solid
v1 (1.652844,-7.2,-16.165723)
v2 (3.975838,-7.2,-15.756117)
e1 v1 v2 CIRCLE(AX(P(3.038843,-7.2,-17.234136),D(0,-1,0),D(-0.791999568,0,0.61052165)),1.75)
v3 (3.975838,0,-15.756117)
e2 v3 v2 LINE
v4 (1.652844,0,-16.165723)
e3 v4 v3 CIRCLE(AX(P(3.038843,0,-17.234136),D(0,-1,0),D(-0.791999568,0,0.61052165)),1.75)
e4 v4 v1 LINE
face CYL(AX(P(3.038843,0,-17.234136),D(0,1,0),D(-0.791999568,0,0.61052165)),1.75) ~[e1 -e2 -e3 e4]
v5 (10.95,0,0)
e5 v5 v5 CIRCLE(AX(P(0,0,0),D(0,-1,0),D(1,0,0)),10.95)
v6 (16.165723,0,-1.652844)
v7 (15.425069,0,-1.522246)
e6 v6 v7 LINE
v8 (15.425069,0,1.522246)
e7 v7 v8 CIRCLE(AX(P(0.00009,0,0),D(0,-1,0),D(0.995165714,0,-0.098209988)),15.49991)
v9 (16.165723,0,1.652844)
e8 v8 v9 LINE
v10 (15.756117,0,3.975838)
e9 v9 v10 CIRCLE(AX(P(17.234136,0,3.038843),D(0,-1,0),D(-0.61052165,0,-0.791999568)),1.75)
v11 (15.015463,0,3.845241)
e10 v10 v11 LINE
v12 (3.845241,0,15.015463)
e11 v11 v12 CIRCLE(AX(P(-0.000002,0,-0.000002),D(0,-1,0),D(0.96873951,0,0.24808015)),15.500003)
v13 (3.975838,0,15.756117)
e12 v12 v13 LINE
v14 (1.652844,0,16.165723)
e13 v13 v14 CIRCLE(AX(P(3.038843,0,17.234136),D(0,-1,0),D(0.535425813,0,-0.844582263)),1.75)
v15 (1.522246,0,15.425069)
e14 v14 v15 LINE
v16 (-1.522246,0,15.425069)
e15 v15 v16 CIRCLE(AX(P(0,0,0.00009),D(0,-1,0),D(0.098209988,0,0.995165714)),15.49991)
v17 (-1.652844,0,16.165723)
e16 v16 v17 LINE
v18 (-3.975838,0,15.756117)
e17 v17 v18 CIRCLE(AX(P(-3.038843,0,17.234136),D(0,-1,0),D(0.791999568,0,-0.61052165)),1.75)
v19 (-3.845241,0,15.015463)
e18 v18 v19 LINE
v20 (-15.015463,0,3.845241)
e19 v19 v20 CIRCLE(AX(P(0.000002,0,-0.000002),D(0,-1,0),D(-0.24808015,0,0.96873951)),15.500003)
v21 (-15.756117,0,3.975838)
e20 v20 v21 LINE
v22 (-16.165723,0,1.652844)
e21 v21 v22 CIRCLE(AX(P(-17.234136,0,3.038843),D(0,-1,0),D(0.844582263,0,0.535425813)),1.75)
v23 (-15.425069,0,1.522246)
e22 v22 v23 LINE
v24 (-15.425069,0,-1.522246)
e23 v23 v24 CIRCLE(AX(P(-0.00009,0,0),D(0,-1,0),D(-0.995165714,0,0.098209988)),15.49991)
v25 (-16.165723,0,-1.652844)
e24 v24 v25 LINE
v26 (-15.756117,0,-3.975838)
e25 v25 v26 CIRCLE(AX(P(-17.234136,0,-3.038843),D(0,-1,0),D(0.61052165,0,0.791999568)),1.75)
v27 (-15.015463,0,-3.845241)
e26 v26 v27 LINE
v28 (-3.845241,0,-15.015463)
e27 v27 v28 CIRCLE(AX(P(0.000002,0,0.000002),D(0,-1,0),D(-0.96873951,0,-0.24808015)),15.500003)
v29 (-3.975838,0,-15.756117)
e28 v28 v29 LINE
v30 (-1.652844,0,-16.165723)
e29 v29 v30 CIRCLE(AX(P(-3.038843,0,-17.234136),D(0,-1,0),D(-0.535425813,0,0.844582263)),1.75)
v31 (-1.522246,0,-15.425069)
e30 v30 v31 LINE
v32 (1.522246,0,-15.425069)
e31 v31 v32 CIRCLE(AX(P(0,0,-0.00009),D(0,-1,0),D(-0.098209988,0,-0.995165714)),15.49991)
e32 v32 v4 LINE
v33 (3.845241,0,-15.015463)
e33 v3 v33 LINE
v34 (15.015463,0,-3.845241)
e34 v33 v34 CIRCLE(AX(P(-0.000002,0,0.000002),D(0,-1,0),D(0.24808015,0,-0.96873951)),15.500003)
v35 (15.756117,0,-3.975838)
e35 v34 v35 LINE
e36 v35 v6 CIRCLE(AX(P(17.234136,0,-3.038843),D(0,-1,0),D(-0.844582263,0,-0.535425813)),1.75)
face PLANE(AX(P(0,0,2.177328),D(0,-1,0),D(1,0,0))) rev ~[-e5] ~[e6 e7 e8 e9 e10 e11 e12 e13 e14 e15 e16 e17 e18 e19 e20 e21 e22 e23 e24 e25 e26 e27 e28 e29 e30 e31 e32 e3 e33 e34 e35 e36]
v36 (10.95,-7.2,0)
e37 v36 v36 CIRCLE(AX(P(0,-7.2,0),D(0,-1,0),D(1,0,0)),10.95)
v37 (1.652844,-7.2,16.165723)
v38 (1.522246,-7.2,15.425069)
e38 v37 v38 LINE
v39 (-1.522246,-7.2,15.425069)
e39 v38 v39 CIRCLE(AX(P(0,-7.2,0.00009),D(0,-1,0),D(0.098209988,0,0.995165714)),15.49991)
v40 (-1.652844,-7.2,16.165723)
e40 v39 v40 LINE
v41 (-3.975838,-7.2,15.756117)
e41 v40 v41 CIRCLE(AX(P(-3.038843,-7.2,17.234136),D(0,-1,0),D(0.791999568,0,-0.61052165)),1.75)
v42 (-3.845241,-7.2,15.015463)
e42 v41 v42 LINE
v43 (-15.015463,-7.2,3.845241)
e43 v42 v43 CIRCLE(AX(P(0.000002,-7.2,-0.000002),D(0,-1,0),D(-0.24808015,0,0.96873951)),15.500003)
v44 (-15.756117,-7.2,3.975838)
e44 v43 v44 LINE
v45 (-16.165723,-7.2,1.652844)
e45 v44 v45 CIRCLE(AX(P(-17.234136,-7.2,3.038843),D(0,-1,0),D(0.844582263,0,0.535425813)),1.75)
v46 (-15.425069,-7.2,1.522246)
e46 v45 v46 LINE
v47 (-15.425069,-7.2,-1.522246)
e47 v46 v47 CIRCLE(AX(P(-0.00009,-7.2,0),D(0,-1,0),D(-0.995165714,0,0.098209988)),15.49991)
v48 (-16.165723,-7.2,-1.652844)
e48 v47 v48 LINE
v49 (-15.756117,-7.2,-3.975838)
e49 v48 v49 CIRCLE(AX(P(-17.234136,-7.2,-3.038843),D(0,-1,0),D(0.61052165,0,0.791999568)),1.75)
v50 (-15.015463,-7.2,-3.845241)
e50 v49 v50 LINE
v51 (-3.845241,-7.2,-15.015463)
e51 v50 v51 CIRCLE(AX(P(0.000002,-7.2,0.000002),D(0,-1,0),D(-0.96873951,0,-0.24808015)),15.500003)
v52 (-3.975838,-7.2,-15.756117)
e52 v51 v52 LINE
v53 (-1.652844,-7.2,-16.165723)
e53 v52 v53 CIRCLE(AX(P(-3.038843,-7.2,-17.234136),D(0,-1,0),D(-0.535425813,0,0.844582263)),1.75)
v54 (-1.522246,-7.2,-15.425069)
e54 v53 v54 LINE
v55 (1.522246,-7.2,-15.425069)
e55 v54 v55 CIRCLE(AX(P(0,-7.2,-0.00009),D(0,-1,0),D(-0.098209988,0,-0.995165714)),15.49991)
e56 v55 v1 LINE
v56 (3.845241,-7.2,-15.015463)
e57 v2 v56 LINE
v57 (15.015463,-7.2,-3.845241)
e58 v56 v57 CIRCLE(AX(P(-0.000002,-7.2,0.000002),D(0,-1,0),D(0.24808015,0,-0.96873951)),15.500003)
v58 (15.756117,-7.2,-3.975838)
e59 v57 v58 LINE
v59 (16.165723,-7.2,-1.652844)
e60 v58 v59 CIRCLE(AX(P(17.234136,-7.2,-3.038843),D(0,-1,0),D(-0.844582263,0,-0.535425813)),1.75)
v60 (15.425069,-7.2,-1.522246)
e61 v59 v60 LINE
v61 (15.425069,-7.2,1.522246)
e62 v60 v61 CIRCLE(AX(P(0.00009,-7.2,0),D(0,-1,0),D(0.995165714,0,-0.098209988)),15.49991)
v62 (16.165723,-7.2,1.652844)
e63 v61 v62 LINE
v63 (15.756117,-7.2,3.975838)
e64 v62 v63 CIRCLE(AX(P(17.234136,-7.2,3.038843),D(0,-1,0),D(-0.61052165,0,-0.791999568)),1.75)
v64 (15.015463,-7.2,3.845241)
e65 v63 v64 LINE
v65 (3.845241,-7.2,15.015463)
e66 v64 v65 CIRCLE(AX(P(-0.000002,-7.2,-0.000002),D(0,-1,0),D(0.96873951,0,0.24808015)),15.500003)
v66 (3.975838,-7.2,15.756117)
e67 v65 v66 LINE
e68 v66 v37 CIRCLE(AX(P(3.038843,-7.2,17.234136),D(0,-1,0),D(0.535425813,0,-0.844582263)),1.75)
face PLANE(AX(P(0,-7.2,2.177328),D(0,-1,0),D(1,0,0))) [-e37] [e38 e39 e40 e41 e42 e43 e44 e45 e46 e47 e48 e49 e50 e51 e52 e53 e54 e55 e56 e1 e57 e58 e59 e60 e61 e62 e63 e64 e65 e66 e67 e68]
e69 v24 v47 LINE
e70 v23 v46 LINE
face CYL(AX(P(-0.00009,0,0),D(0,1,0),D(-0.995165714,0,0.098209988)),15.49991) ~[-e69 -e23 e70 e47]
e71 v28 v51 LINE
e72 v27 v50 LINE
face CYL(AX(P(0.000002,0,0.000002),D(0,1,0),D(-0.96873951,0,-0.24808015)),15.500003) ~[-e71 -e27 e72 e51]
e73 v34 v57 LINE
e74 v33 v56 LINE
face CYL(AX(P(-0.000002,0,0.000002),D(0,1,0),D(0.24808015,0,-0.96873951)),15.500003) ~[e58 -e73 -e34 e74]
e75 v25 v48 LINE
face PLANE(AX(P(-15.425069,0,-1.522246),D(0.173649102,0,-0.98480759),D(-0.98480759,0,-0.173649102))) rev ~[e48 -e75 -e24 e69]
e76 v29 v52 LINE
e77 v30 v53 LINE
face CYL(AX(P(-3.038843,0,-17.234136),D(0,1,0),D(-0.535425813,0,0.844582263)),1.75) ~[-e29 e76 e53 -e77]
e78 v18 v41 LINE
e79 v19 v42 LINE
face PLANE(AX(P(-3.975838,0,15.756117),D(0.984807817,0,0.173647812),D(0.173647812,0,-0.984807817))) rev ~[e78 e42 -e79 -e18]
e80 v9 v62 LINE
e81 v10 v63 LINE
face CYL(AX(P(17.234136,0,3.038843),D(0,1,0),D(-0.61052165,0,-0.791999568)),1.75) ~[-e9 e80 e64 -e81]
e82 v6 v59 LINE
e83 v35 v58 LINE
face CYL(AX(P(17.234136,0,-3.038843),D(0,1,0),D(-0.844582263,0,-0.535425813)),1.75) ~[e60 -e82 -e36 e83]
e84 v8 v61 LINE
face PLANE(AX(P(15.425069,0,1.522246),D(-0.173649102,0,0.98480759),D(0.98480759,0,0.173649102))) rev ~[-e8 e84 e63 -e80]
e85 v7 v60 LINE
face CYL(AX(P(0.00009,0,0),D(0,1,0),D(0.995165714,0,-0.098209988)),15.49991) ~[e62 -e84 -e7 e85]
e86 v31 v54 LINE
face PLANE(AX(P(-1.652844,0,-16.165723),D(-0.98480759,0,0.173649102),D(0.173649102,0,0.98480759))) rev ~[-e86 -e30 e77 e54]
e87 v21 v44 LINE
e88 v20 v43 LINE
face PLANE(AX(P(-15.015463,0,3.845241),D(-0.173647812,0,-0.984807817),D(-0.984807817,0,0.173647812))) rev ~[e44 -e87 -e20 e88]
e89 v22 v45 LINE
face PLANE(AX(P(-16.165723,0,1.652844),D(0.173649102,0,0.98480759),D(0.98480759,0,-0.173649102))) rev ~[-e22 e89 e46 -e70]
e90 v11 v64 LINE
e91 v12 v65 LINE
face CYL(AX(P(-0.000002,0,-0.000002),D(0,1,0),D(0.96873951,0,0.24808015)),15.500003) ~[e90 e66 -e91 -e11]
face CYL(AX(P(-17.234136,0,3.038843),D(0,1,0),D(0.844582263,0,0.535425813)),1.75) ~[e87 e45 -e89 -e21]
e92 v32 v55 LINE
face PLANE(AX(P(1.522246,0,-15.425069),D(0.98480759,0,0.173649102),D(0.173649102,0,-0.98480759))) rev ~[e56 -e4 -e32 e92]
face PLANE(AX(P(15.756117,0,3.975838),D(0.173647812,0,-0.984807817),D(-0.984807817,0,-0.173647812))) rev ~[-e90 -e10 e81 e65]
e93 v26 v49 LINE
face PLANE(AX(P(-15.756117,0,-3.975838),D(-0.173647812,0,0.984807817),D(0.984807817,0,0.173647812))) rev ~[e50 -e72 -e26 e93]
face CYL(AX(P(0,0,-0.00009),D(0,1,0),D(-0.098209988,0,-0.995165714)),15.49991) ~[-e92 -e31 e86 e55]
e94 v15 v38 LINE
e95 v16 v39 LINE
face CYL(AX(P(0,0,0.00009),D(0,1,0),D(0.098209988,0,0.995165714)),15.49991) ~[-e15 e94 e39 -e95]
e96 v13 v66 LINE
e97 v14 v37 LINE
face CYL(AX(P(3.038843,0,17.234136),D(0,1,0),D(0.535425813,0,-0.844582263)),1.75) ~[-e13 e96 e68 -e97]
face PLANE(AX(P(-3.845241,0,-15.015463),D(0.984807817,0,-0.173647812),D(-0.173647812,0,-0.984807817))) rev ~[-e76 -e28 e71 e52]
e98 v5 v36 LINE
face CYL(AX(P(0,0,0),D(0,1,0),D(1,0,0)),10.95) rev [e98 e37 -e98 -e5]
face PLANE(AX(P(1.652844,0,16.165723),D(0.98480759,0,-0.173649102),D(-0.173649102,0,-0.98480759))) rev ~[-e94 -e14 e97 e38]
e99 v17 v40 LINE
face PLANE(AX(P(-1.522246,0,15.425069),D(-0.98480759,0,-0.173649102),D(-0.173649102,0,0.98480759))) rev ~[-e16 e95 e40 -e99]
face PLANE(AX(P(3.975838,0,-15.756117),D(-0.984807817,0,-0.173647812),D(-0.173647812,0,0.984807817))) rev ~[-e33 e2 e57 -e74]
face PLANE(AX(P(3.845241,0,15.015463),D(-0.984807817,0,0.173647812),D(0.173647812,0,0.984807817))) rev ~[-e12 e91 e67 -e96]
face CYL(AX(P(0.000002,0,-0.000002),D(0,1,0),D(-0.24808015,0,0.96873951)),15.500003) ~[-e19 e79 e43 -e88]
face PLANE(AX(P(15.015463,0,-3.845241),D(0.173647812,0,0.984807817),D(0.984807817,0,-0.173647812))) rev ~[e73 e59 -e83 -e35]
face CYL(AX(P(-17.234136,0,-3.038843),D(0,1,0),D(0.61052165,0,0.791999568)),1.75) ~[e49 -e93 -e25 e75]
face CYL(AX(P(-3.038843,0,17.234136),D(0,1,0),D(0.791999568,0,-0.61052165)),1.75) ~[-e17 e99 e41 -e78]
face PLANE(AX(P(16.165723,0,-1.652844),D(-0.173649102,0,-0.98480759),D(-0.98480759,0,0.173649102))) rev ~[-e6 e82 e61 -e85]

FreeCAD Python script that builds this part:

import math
import FreeCAD as App
import Part
import Sketcher

V = App.Vector

doc = App.newDocument("Part")
body = doc.addObject("PartDesign::Body", "Body")

sketch1 = body.newObject("Sketcher::SketchObject", "Sketch")
sketch1.AttachmentSupport = (doc.getObject("XZ_Plane"), [""])
sketch1.MapMode = "FlatFace"
sketch1.addGeometry(Part.LineSegment(V(-3.975838, 15.756117, 0), V(-3.845241, 15.015463, 0)), False)
sketch1.addGeometry(Part.ArcOfCircle(Part.Circle(V(0.000002, -0.000002, 0), V(0, 0, 1), 15.500003), math.radians(104.363934), math.radians(165.636066)), False)
sketch1.addGeometry(Part.LineSegment(V(-15.015463, 3.845241, 0), V(-15.756117, 3.975838, 0)), False)
sketch1.addGeometry(Part.ArcOfCircle(Part.Circle(V(-17.234136, 3.038843, 0), V(0, 0, 1), 1.75), math.radians(32.372794), math.radians(307.627231)), False)
sketch1.addGeometry(Part.LineSegment(V(-16.165723, 1.652844, 0), V(-15.425069, 1.522246, 0)), False)
sketch1.addGeometry(Part.ArcOfCircle(Part.Circle(V(-0.00009, 0, 0), V(0, 0, 1), 15.49991), math.radians(174.363897), math.radians(185.636103)), False)
sketch1.addGeometry(Part.LineSegment(V(-15.425069, -1.522246, 0), V(-16.165723, -1.652844, 0)), False)
sketch1.addGeometry(Part.ArcOfCircle(Part.Circle(V(-17.234136, -3.038843, 0), V(0, 0, 1), 1.75), math.radians(52.372769), math.radians(327.627206)), False)
sketch1.addGeometry(Part.LineSegment(V(-15.756117, -3.975838, 0), V(-15.015463, -3.845241, 0)), False)
sketch1.addGeometry(Part.ArcOfCircle(Part.Circle(V(0.000002, 0.000002, 0), V(0, 0, 1), 15.500003), math.radians(-165.636066), math.radians(-104.363934)), False)
sketch1.addGeometry(Part.LineSegment(V(-3.845241, -15.015463, 0), V(-3.975838, -15.756117, 0)), False)
sketch1.addGeometry(Part.ArcOfCircle(Part.Circle(V(-3.038843, -17.234136, 0), V(0, 0, 1), 1.75), math.radians(122.372794), math.radians(397.627231)), False)
sketch1.addGeometry(Part.LineSegment(V(-1.652844, -16.165723, 0), V(-1.522246, -15.425069, 0)), False)
sketch1.addGeometry(Part.ArcOfCircle(Part.Circle(V(0, -0.00009, 0), V(0, 0, 1), 15.49991), math.radians(-95.636103), math.radians(-84.363897)), False)
sketch1.addGeometry(Part.LineSegment(V(1.522246, -15.425069, 0), V(1.652844, -16.165723, 0)), False)
sketch1.addGeometry(Part.ArcOfCircle(Part.Circle(V(3.038843, -17.234136, 0), V(0, 0, 1), 1.75), math.radians(142.372769), math.radians(417.627206)), False)
sketch1.addGeometry(Part.LineSegment(V(3.975838, -15.756117, 0), V(3.845241, -15.015463, 0)), False)
sketch1.addGeometry(Part.ArcOfCircle(Part.Circle(V(-0.000002, 0.000002, 0), V(0, 0, 1), 15.500003), math.radians(-75.636066), math.radians(-14.363934)), False)
sketch1.addGeometry(Part.LineSegment(V(15.015463, -3.845241, 0), V(15.756117, -3.975838, 0)), False)
sketch1.addGeometry(Part.ArcOfCircle(Part.Circle(V(17.234136, -3.038843, 0), V(0, 0, 1), 1.75), math.radians(-147.627206), math.radians(127.627231)), False)
sketch1.addGeometry(Part.LineSegment(V(16.165723, -1.652844, 0), V(15.425069, -1.522246, 0)), False)
sketch1.addGeometry(Part.ArcOfCircle(Part.Circle(V(0.00009, 0, 0), V(0, 0, 1), 15.49991), math.radians(-5.636103), math.radians(5.636103)), False)
sketch1.addGeometry(Part.LineSegment(V(15.425069, 1.522246, 0), V(16.165723, 1.652844, 0)), False)
sketch1.addGeometry(Part.ArcOfCircle(Part.Circle(V(17.234136, 3.038843, 0), V(0, 0, 1), 1.75), math.radians(-127.627231), math.radians(147.627206)), False)
sketch1.addGeometry(Part.LineSegment(V(15.756117, 3.975838, 0), V(15.015463, 3.845241, 0)), False)
sketch1.addGeometry(Part.ArcOfCircle(Part.Circle(V(-0.000002, -0.000002, 0), V(0, 0, 1), 15.500003), math.radians(14.363934), math.radians(75.636066)), False)
sketch1.addGeometry(Part.LineSegment(V(3.845241, 15.015463, 0), V(3.975838, 15.756117, 0)), False)
sketch1.addGeometry(Part.ArcOfCircle(Part.Circle(V(3.038843, 17.234136, 0), V(0, 0, 1), 1.75), math.radians(-57.627206), math.radians(217.627231)), False)
sketch1.addGeometry(Part.LineSegment(V(1.652844, 16.165723, 0), V(1.522246, 15.425069, 0)), False)
sketch1.addGeometry(Part.ArcOfCircle(Part.Circle(V(0, 0.00009, 0), V(0, 0, 1), 15.49991), math.radians(84.363897), math.radians(95.636103)), False)
sketch1.addGeometry(Part.LineSegment(V(-1.522246, 15.425069, 0), V(-1.652844, 16.165723, 0)), False)
sketch1.addGeometry(Part.ArcOfCircle(Part.Circle(V(-3.038843, 17.234136, 0), V(0, 0, 1), 1.75), math.radians(-37.627231), math.radians(237.627206)), False)
sketch1.addGeometry(Part.Circle(V(0, 0, 0), V(0, 0, 1), 10.95), False)
sketch1.addConstraint(Sketcher.Constraint("Coincident", 0, 2, 1, 1))
sketch1.addConstraint(Sketcher.Constraint("Coincident", 1, 2, 2, 1))
sketch1.addConstraint(Sketcher.Constraint("Coincident", 2, 2, 3, 1))
sketch1.addConstraint(Sketcher.Constraint("Coincident", 3, 2, 4, 1))
sketch1.addConstraint(Sketcher.Constraint("Coincident", 4, 2, 5, 1))
sketch1.addConstraint(Sketcher.Constraint("Coincident", 5, 2, 6, 1))
sketch1.addConstraint(Sketcher.Constraint("Coincident", 6, 2, 7, 1))
sketch1.addConstraint(Sketcher.Constraint("Coincident", 7, 2, 8, 1))
sketch1.addConstraint(Sketcher.Constraint("Coincident", 8, 2, 9, 1))
sketch1.addConstraint(Sketcher.Constraint("Coincident", 9, 2, 10, 1))
sketch1.addConstraint(Sketcher.Constraint("Coincident", 10, 2, 11, 1))
sketch1.addConstraint(Sketcher.Constraint("Coincident", 11, 2, 12, 1))
sketch1.addConstraint(Sketcher.Constraint("Coincident", 12, 2, 13, 1))
sketch1.addConstraint(Sketcher.Constraint("Coincident", 13, 2, 14, 1))
sketch1.addConstraint(Sketcher.Constraint("Coincident", 14, 2, 15, 1))
sketch1.addConstraint(Sketcher.Constraint("Coincident", 15, 2, 16, 1))
sketch1.addConstraint(Sketcher.Constraint("Coincident", 16, 2, 17, 1))
sketch1.addConstraint(Sketcher.Constraint("Coincident", 17, 2, 18, 1))
sketch1.addConstraint(Sketcher.Constraint("Coincident", 18, 2, 19, 1))
sketch1.addConstraint(Sketcher.Constraint("Coincident", 19, 2, 20, 1))
sketch1.addConstraint(Sketcher.Constraint("Coincident", 20, 2, 21, 1))
sketch1.addConstraint(Sketcher.Constraint("Coincident", 21, 2, 22, 1))
sketch1.addConstraint(Sketcher.Constraint("Coincident", 22, 2, 23, 1))
sketch1.addConstraint(Sketcher.Constraint("Coincident", 23, 2, 24, 1))
sketch1.addConstraint(Sketcher.Constraint("Coincident", 24, 2, 25, 1))
sketch1.addConstraint(Sketcher.Constraint("Coincident", 25, 2, 26, 1))
sketch1.addConstraint(Sketcher.Constraint("Coincident", 26, 2, 27, 1))
sketch1.addConstraint(Sketcher.Constraint("Coincident", 27, 2, 28, 1))
sketch1.addConstraint(Sketcher.Constraint("Coincident", 28, 2, 29, 1))
sketch1.addConstraint(Sketcher.Constraint("Coincident", 29, 2, 30, 1))
sketch1.addConstraint(Sketcher.Constraint("Coincident", 30, 2, 31, 1))
sketch1.addConstraint(Sketcher.Constraint("Coincident", 31, 2, 0, 1))
sketch1.addConstraint(Sketcher.Constraint("Coincident", 1, 3, -1, 1))
sketch1.addConstraint(Sketcher.Constraint("Coincident", 9, 3, -1, 1))
sketch1.addConstraint(Sketcher.Constraint("Coincident", 17, 3, -1, 1))
sketch1.addConstraint(Sketcher.Constraint("Coincident", 25, 3, -1, 1))
sketch1.addConstraint(Sketcher.Constraint("Coincident", 32, 3, -1, 1))
sketch1.addConstraint(Sketcher.Constraint("Equal", 3, 7))
sketch1.addConstraint(Sketcher.Constraint("Equal", 1, 9))
sketch1.addConstraint(Sketcher.Constraint("Equal", 7, 11))
sketch1.addConstraint(Sketcher.Constraint("Equal", 5, 13))
sketch1.addConstraint(Sketcher.Constraint("Equal", 11, 15))
sketch1.addConstraint(Sketcher.Constraint("Equal", 9, 17))
sketch1.addConstraint(Sketcher.Constraint("Equal", 15, 19))
sketch1.addConstraint(Sketcher.Constraint("Equal", 13, 21))
sketch1.addConstraint(Sketcher.Constraint("Equal", 19, 23))
sketch1.addConstraint(Sketcher.Constraint("Equal", 17, 25))
sketch1.addConstraint(Sketcher.Constraint("Equal", 23, 27))
sketch1.addConstraint(Sketcher.Constraint("Equal", 21, 29))
sketch1.addConstraint(Sketcher.Constraint("Equal", 27, 31))
sketch1.addConstraint(Sketcher.Constraint("Symmetric", 3, 3, 19, 3, -1, 1))
sketch1.addConstraint(Sketcher.Constraint("Symmetric", 5, 3, 21, 3, -1, 1))
sketch1.addConstraint(Sketcher.Constraint("Symmetric", 7, 3, 23, 3, -1, 1))
sketch1.addConstraint(Sketcher.Constraint("Symmetric", 11, 3, 27, 3, -1, 1))
sketch1.addConstraint(Sketcher.Constraint("Symmetric", 13, 3, 29, 3, -1, 1))
sketch1.addConstraint(Sketcher.Constraint("Symmetric", 15, 3, 31, 3, -1, 1))
sketch1.addConstraint(Sketcher.Constraint("Symmetric", 11, 3, 15, 3, -2))
sketch1.addConstraint(Sketcher.Constraint("Symmetric", 7, 3, 19, 3, -2))
sketch1.addConstraint(Sketcher.Constraint("Symmetric", 12, 2, 13, 2, -2))
sketch1.addConstraint(Sketcher.Constraint("Symmetric", 5, 2, 20, 2, -2))
sketch1.addConstraint(Sketcher.Constraint("Parallel", 2, 4))
sketch1.addConstraint(Sketcher.Constraint("Perpendicular", 0, 6))
sketch1.addConstraint(Sketcher.Constraint("Parallel", 6, 8))
sketch1.addConstraint(Sketcher.Constraint("Perpendicular", 4, 10))
sketch1.addConstraint(Sketcher.Constraint("Parallel", 10, 12))
sketch1.addConstraint(Sketcher.Constraint("Perpendicular", 8, 14))
sketch1.addConstraint(Sketcher.Constraint("Parallel", 14, 16))
sketch1.addConstraint(Sketcher.Constraint("Perpendicular", 12, 18))
sketch1.addConstraint(Sketcher.Constraint("Parallel", 18, 20))
sketch1.addConstraint(Sketcher.Constraint("Perpendicular", 16, 22))
sketch1.addConstraint(Sketcher.Constraint("Parallel", 22, 24))
sketch1.addConstraint(Sketcher.Constraint("Perpendicular", 20, 26))
sketch1.addConstraint(Sketcher.Constraint("Parallel", 26, 28))
sketch1.addConstraint(Sketcher.Constraint("Perpendicular", 24, 30))
sketch1.addConstraint(Sketcher.Constraint("Horizontal", 11, 2, 14, 2))
sketch1.addConstraint(Sketcher.Constraint("Horizontal", 10, 2, 15, 2))
sketch1.addConstraint(Sketcher.Constraint("Horizontal", 8, 2, 17, 2))
sketch1.addConstraint(Sketcher.Constraint("Horizontal", 4, 2, 21, 2))
sketch1.addConstraint(Sketcher.Constraint("Horizontal", 2, 2, 23, 2))
sketch1.addConstraint(Sketcher.Constraint("Horizontal", 0, 2, 25, 2))
sketch1.addConstraint(Sketcher.Constraint("Horizontal", 28, 2, 29, 2))
sketch1.addConstraint(Sketcher.Constraint("Vertical", 4, 2, 5, 2))
sketch1.addConstraint(Sketcher.Constraint("Vertical", 2, 2, 7, 2))
sketch1.addConstraint(Sketcher.Constraint("Vertical", 0, 2, 9, 2))
sketch1.addConstraint(Sketcher.Constraint("Vertical", 14, 2, 27, 2))
sketch1.addConstraint(Sketcher.Constraint("Equal", 0, 2))
sketch1.addConstraint(Sketcher.Constraint("Equal", 2, 4))
sketch1.addConstraint(Sketcher.Constraint("Equal", 10, 12))
sketch1.addConstraint(Sketcher.Constraint("Diameter", 32, 21.9))
sketch1.addConstraint(Sketcher.Constraint("Radius", 3, 1.75))
sketch1.addConstraint(Sketcher.Constraint("Radius", 5, 15.49991))
sketch1.addConstraint(Sketcher.Constraint("Radius", 1, 15.500003))
sketch1.addConstraint(Sketcher.Constraint("DistanceY", 3, 2, 3, 3, 1.385999))
sketch1.addConstraint(Sketcher.Constraint("DistanceX", 11, 3, 11, 2, 1.385999))
sketch1.addConstraint(Sketcher.Constraint("DistanceX", 0, 2, 31, 3, 0.806398))
sketch1.addConstraint(Sketcher.Constraint("DistanceY", 3, 3, 1, 2, 0.806398))
sketch1.addConstraint(Sketcher.Constraint("DistanceY", 6, 2, 5, 2, 0.130598))
sketch1.addConstraint(Sketcher.Constraint("Distance", 0, 0.75208))
sketch1.addConstraint(Sketcher.Constraint("DistanceX", 0, 2, -1, 1, 3.845241))
sketch1.addConstraint(Sketcher.Constraint("DistanceY", -1, 1, 1, 2, 3.845241))
pad1 = body.newObject("PartDesign::Pad", "Pad")
pad1.Profile = sketch1
pad1.Length = 7.2

doc.recompute()
